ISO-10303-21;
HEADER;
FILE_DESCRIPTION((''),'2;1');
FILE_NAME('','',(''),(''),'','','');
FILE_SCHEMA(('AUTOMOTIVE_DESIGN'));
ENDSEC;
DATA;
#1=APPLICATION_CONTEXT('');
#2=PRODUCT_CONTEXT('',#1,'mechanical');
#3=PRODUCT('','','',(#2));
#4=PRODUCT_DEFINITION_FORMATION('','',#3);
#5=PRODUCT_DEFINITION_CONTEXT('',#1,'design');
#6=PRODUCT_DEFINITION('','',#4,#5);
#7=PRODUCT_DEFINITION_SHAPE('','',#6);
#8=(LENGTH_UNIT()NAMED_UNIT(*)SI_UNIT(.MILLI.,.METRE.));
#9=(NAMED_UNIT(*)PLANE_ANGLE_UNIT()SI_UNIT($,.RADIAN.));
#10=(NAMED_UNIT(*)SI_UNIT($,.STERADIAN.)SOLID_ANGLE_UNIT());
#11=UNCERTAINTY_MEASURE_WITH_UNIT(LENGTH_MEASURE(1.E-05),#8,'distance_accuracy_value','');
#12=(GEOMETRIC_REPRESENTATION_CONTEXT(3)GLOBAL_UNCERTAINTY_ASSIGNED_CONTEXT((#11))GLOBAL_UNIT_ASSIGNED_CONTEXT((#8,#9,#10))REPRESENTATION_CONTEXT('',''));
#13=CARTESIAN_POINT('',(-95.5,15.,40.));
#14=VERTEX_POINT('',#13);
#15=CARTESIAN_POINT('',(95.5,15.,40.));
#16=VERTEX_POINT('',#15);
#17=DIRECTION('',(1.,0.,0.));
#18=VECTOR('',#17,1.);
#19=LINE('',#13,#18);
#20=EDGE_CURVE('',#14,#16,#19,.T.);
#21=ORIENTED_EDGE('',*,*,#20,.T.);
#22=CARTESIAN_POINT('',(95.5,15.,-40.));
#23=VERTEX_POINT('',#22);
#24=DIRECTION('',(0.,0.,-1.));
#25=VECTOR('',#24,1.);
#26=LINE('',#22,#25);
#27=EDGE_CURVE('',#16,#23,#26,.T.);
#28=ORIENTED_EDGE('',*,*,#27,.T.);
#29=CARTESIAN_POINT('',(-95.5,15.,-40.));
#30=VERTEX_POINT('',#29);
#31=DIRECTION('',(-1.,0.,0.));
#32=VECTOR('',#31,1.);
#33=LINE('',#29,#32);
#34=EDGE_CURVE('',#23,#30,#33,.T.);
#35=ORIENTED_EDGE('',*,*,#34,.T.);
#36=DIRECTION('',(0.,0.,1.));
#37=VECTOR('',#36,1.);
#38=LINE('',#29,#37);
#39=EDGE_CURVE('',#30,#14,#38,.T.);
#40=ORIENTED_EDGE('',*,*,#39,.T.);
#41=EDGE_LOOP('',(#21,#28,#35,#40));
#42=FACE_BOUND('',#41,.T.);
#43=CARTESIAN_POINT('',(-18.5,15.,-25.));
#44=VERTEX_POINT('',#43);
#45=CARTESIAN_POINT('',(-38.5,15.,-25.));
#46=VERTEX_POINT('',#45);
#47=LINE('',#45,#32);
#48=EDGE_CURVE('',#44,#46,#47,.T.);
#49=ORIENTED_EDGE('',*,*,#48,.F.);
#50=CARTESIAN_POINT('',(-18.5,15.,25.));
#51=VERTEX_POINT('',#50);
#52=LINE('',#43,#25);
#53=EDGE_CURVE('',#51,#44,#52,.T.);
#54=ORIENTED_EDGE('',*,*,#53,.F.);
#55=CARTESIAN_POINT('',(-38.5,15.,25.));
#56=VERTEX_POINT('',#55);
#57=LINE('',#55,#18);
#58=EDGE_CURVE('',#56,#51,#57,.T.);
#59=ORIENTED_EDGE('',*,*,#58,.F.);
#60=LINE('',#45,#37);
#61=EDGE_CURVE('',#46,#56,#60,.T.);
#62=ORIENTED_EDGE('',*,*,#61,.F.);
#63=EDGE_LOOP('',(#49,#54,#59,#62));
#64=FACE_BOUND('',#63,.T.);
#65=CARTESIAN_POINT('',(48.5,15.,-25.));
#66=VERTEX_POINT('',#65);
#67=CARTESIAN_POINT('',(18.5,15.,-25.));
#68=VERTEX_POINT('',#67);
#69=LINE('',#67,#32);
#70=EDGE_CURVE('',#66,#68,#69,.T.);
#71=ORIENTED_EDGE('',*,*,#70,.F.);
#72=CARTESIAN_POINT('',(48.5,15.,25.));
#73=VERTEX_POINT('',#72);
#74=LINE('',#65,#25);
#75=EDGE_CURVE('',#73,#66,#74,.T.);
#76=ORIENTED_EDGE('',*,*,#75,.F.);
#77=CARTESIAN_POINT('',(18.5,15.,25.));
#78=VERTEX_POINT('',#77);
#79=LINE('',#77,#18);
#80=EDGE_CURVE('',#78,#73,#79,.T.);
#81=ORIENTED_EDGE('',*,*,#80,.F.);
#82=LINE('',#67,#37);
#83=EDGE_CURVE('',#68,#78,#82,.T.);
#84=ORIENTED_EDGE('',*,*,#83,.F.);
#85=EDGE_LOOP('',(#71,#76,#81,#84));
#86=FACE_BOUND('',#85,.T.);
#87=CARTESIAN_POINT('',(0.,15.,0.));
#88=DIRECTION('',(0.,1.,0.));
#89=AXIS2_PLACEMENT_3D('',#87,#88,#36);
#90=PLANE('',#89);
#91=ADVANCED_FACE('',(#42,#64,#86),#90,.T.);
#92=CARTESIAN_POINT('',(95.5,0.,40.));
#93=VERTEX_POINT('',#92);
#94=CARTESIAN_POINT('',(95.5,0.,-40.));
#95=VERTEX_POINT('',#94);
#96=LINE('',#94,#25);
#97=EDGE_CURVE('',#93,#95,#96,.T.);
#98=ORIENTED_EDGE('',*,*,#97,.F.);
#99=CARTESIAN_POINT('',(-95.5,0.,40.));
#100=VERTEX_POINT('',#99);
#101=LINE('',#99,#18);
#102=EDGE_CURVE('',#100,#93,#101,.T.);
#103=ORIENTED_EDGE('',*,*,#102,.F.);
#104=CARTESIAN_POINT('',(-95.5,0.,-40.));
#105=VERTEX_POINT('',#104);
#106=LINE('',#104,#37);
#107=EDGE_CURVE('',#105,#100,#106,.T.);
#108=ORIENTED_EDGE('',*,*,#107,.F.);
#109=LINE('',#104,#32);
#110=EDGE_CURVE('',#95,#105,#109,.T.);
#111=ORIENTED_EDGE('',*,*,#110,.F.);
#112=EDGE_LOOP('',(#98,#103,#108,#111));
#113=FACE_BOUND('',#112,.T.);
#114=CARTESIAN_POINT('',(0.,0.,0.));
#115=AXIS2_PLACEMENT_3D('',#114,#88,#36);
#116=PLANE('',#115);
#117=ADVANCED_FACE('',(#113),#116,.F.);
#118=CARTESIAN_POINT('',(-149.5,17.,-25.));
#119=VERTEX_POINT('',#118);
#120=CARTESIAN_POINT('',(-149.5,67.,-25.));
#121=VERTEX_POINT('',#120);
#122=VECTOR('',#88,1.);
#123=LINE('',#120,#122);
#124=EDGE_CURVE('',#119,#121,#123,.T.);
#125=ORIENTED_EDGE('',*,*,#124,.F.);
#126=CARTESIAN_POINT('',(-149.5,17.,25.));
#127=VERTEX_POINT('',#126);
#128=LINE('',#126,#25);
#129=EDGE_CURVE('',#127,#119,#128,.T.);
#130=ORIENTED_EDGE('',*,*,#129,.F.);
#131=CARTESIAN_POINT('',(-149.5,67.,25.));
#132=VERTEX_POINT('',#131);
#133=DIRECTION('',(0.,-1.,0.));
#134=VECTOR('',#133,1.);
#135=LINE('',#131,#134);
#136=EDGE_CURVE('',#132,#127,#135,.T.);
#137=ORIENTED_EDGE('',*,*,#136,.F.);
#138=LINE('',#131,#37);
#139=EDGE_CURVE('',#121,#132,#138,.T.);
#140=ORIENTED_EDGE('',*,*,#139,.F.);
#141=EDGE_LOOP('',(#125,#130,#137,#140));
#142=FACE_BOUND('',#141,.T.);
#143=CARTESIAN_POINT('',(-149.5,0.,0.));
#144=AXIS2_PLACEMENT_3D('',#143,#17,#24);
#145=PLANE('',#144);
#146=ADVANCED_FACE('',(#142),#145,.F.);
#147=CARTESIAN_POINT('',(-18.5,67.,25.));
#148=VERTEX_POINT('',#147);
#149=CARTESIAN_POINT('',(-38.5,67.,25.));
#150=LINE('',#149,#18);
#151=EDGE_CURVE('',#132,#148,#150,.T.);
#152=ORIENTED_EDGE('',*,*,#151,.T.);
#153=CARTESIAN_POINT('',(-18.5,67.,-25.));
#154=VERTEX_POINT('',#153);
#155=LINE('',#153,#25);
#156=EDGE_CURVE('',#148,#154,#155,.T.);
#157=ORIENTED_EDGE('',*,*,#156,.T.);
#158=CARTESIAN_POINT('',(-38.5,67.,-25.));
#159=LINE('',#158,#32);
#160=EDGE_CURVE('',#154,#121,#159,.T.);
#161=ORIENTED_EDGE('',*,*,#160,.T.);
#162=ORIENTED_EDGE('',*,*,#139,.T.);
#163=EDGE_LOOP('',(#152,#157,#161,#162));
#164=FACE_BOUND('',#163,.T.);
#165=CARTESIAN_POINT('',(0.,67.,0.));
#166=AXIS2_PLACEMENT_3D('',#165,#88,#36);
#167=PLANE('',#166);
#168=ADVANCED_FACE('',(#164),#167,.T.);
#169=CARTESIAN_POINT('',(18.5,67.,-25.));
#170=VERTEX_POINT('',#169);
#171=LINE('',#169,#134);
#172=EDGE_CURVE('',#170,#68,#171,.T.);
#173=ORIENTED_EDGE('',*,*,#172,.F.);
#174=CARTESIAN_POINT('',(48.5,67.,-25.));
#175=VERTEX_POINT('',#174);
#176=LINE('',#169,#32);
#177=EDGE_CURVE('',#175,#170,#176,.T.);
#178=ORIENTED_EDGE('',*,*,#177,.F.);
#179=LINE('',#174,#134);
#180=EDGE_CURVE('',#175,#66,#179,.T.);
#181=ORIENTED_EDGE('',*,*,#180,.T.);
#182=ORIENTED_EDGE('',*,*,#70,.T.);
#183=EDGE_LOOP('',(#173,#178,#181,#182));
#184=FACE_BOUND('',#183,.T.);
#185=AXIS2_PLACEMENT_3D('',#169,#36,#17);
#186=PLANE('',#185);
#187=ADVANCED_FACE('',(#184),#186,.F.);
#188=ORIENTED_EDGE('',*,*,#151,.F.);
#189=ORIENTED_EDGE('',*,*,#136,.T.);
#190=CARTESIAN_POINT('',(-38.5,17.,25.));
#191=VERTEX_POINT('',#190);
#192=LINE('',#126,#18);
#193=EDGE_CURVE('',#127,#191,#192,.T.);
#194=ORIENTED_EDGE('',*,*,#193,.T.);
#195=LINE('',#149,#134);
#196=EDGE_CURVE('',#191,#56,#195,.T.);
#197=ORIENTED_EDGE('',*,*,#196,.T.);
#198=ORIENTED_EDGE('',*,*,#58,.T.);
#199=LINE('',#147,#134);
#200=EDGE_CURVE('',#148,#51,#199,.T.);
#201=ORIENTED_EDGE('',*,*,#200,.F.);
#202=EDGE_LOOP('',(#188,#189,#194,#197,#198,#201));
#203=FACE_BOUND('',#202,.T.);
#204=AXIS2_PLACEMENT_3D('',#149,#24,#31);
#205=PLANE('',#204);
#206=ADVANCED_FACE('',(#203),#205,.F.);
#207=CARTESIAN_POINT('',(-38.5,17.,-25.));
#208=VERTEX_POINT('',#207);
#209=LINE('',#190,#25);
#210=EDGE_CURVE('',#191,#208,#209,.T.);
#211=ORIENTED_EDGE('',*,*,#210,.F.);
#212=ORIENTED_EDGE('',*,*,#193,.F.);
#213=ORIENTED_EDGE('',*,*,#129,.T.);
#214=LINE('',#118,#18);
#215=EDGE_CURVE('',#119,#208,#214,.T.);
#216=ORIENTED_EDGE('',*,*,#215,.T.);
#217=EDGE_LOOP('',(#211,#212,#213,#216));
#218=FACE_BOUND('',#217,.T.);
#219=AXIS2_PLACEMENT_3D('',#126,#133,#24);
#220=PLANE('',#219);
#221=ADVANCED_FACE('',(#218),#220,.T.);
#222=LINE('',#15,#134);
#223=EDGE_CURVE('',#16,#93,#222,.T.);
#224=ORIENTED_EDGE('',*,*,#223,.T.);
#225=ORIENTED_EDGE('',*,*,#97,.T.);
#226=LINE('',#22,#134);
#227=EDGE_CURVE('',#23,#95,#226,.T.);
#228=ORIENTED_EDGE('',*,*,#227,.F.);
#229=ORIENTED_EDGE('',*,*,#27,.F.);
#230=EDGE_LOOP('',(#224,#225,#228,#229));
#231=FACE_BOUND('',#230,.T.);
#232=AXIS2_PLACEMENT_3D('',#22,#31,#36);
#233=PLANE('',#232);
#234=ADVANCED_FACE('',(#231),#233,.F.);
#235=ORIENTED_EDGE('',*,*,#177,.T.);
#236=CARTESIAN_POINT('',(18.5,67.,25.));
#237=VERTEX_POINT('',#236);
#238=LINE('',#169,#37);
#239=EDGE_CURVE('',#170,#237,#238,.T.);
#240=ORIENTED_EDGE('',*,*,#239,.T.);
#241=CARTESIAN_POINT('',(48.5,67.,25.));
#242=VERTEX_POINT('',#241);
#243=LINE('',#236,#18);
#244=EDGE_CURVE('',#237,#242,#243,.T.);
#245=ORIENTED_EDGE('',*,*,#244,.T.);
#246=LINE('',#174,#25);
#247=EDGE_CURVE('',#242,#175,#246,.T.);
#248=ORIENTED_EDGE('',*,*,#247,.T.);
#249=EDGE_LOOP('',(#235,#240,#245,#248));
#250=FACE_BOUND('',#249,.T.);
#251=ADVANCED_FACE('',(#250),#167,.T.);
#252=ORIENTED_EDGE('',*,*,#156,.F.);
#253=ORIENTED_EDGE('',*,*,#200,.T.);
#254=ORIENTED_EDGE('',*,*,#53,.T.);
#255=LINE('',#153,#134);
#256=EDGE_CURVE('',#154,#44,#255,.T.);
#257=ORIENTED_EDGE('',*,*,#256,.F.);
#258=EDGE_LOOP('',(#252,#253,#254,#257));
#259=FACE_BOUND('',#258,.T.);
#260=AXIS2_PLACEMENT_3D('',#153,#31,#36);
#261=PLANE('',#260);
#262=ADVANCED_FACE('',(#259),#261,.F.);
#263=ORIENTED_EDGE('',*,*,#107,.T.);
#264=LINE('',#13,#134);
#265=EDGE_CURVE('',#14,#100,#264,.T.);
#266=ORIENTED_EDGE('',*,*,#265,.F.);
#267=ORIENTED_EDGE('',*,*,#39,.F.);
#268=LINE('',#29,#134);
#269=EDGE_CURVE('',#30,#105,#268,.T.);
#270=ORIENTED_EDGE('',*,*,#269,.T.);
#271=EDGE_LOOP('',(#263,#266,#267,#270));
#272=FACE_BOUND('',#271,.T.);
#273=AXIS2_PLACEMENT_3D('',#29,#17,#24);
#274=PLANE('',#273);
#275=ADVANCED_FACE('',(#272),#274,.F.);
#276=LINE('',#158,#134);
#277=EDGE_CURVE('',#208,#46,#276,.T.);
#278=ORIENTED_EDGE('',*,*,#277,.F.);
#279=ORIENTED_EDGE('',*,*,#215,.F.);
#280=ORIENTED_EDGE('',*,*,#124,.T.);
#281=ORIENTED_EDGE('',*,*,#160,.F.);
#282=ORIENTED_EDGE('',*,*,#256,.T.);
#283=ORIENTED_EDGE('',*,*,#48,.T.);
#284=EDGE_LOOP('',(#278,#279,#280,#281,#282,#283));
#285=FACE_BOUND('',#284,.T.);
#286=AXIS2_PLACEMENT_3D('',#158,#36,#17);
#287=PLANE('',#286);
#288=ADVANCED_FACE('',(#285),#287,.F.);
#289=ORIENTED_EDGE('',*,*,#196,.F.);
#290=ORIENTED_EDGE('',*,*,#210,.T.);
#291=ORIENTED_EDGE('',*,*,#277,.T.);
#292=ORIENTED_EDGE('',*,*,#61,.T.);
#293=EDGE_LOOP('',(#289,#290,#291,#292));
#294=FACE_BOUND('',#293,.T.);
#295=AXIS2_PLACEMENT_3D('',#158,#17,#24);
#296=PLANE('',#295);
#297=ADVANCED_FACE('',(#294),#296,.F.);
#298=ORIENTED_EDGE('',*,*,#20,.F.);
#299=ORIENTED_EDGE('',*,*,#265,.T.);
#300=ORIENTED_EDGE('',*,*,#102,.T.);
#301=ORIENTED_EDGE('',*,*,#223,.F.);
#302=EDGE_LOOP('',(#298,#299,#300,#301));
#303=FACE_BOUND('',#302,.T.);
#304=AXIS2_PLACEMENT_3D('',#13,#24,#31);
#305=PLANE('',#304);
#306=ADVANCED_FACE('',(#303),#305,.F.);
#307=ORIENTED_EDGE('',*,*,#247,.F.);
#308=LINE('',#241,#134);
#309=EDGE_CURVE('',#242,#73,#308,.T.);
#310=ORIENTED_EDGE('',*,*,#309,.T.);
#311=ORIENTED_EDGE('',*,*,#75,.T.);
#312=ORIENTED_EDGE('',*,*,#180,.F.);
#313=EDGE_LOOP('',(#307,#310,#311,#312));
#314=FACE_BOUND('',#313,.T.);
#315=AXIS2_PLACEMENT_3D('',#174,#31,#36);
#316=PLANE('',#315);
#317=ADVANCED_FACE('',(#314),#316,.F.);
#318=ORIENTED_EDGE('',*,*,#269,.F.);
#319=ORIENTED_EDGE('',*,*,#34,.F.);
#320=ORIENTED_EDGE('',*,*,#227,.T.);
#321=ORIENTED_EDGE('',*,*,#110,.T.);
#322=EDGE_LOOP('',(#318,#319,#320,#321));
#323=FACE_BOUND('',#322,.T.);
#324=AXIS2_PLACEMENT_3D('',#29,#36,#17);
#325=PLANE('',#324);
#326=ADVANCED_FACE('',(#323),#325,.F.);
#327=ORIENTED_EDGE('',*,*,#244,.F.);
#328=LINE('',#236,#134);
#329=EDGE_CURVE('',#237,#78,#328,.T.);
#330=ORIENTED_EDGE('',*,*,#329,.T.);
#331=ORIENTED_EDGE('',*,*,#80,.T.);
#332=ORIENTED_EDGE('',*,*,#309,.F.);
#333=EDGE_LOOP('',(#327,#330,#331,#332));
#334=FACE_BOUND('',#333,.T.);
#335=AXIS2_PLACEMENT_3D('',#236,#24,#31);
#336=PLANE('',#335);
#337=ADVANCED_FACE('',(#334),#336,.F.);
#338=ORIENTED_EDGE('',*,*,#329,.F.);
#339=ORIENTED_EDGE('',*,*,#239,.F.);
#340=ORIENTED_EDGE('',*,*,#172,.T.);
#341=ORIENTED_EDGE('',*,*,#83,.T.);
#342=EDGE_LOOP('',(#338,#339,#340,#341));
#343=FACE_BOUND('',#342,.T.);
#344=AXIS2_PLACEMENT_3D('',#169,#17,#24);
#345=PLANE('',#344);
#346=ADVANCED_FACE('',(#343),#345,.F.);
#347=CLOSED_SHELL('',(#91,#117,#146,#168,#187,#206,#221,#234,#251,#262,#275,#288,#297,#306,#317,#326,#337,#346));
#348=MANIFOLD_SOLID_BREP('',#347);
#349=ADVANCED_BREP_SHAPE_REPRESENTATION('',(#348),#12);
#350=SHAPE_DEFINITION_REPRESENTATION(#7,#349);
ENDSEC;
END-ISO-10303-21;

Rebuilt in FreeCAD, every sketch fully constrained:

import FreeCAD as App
import Part
import Sketcher

V = App.Vector
Q = App.Units.Quantity


def add_polygon(sketch, points):
    """Adds a closed chain of lines whose ends are joined by coincident constraints."""
    first, n = sketch.GeometryCount, len(points)
    for a, b in zip(points, points[1:] + points[:1]):
        sketch.addGeometry(Part.LineSegment(App.Vector(*a, 0), App.Vector(*b, 0)), False)
    for i in range(n):
        sketch.addConstraint(Sketcher.Constraint("Coincident", first + i, 2, first + (i + 1) % n, 1))

doc = App.newDocument("Part")
params = doc.addObject("Spreadsheet::Sheet", "Params")
for row, (alias, value) in enumerate([
    ("sketch1_width", "191 mm"),
    ("sketch1_height", "80 mm"),
    ("pad1_length", "15 mm"),
    ("sketch2_width", "20 mm"),
    ("sketch2_width2", "30 mm"),
    ("sketch2_height", "50 mm"),
    ("pad2_length", "52 mm"),
    ("sketch3_width", "50 mm"),
    ("pad3_length", "111 mm"),
], start=1):
    params.set(f"A{row}", alias)
    params.set(f"B{row}", "=" + value)
    params.setAlias(f"B{row}", alias)

body = doc.addObject("PartDesign::Body", "Body")

sketch1 = body.newObject("Sketcher::SketchObject", "Sketch")
sketch1.AttachmentSupport = (doc.getObject("XZ_Plane"), [""])
sketch1.MapMode = "FlatFace"
add_polygon(sketch1, [(-95.5, -40), (-95.5, 40), (95.5, 40), (95.5, -40)])
sketch1.addConstraint(Sketcher.Constraint("Vertical", 0))
sketch1.addConstraint(Sketcher.Constraint("Horizontal", 1))
sketch1.addConstraint(Sketcher.Constraint("Vertical", 2))
sketch1.addConstraint(Sketcher.Constraint("Horizontal", 3))
sketch1.addConstraint(Sketcher.Constraint("Symmetric", 0, 2, 2, 2, -1, 1))
sketch1.addConstraint(Sketcher.Constraint("DistanceX", 1, 1, 1, 2, Q("191 mm")))
sketch1.addConstraint(Sketcher.Constraint("DistanceY", 0, 1, 0, 2, Q("80 mm")))
sketch1.setExpression("Constraints[9]", "Params.sketch1_width")
sketch1.setExpression("Constraints[10]", "Params.sketch1_height")
pad1 = body.newObject("PartDesign::Pad", "Pad")
pad1.Profile = sketch1
pad1.setExpression("Length", "Params.pad1_length")
pad1.Reversed = True

sketch2 = body.newObject("Sketcher::SketchObject", "Sketch001")
sketch2.AttachmentSupport = (doc.getObject("XZ_Plane"), [""])
sketch2.MapMode = "FlatFace"
sketch2.AttachmentOffset = App.Placement(V(0, 0, -15), App.Rotation())
add_polygon(sketch2, [(-38.5, -25), (-38.5, 25), (-18.5, 25), (-18.5, -25)])
add_polygon(sketch2, [(18.5, -25), (18.5, 25), (48.5, 25), (48.5, -25)])
sketch2.addConstraint(Sketcher.Constraint("Vertical", 0))
sketch2.addConstraint(Sketcher.Constraint("Horizontal", 1))
sketch2.addConstraint(Sketcher.Constraint("Vertical", 2))
sketch2.addConstraint(Sketcher.Constraint("Horizontal", 3))
sketch2.addConstraint(Sketcher.Constraint("Vertical", 4))
sketch2.addConstraint(Sketcher.Constraint("Horizontal", 5))
sketch2.addConstraint(Sketcher.Constraint("Vertical", 6))
sketch2.addConstraint(Sketcher.Constraint("Horizontal", 7))
sketch2.addConstraint(Sketcher.Constraint("Symmetric", 2, 2, 4, 2, -1, 1))
sketch2.addConstraint(Sketcher.Constraint("Horizontal", 1, 2, 4, 2))
sketch2.addConstraint(Sketcher.Constraint("Horizontal", 3, 2, 6, 2))
sketch2.addConstraint(Sketcher.Constraint("DistanceX", 1, 1, 1, 2, Q("20 mm")))
sketch2.addConstraint(Sketcher.Constraint("DistanceX", 5, 1, 5, 2, Q("30 mm")))
sketch2.addConstraint(Sketcher.Constraint("DistanceY", 0, 1, 0, 2, Q("50 mm")))
sketch2.addConstraint(Sketcher.Constraint("DistanceX", 1, 2, 4, 2, Q("37 mm")))
sketch2.setExpression("Constraints[19]", "Params.sketch2_width")
sketch2.setExpression("Constraints[20]", "Params.sketch2_width2")
sketch2.setExpression("Constraints[21]", "Params.sketch2_height")
pad2 = body.newObject("PartDesign::Pad", "Pad001")
pad2.Profile = sketch2
pad2.setExpression("Length", "Params.pad2_length")
pad2.Reversed = True

sketch3 = body.newObject("Sketcher::SketchObject", "Sketch002")
sketch3.AttachmentSupport = (doc.getObject("YZ_Plane"), [""])
sketch3.MapMode = "FlatFace"
sketch3.AttachmentOffset = App.Placement(V(0, 0, -38.5), App.Rotation())
add_polygon(sketch3, [(67, 25), (17, 25), (17, -25), (67, -25)])
sketch3.addConstraint(Sketcher.Constraint("Horizontal", 0))
sketch3.addConstraint(Sketcher.Constraint("Vertical", 1))
sketch3.addConstraint(Sketcher.Constraint("Horizontal", 2))
sketch3.addConstraint(Sketcher.Constraint("Vertical", 3))
sketch3.addConstraint(Sketcher.Constraint("Equal", 2, 1))
sketch3.addConstraint(Sketcher.Constraint("DistanceX", 0, 2, 0, 1, Q("50 mm")))
sketch3.addConstraint(Sketcher.Constraint("DistanceX", -1, 1, 0, 2, Q("17 mm")))
sketch3.addConstraint(Sketcher.Constraint("DistanceY", -1, 1, 0, 2, Q("25 mm")))
sketch3.setExpression("Constraints[9]", "Params.sketch3_width")
pad3 = body.newObject("PartDesign::Pad", "Pad002")
pad3.Profile = sketch3
pad3.setExpression("Length", "Params.pad3_length")
pad3.Reversed = True

doc.recompute()
